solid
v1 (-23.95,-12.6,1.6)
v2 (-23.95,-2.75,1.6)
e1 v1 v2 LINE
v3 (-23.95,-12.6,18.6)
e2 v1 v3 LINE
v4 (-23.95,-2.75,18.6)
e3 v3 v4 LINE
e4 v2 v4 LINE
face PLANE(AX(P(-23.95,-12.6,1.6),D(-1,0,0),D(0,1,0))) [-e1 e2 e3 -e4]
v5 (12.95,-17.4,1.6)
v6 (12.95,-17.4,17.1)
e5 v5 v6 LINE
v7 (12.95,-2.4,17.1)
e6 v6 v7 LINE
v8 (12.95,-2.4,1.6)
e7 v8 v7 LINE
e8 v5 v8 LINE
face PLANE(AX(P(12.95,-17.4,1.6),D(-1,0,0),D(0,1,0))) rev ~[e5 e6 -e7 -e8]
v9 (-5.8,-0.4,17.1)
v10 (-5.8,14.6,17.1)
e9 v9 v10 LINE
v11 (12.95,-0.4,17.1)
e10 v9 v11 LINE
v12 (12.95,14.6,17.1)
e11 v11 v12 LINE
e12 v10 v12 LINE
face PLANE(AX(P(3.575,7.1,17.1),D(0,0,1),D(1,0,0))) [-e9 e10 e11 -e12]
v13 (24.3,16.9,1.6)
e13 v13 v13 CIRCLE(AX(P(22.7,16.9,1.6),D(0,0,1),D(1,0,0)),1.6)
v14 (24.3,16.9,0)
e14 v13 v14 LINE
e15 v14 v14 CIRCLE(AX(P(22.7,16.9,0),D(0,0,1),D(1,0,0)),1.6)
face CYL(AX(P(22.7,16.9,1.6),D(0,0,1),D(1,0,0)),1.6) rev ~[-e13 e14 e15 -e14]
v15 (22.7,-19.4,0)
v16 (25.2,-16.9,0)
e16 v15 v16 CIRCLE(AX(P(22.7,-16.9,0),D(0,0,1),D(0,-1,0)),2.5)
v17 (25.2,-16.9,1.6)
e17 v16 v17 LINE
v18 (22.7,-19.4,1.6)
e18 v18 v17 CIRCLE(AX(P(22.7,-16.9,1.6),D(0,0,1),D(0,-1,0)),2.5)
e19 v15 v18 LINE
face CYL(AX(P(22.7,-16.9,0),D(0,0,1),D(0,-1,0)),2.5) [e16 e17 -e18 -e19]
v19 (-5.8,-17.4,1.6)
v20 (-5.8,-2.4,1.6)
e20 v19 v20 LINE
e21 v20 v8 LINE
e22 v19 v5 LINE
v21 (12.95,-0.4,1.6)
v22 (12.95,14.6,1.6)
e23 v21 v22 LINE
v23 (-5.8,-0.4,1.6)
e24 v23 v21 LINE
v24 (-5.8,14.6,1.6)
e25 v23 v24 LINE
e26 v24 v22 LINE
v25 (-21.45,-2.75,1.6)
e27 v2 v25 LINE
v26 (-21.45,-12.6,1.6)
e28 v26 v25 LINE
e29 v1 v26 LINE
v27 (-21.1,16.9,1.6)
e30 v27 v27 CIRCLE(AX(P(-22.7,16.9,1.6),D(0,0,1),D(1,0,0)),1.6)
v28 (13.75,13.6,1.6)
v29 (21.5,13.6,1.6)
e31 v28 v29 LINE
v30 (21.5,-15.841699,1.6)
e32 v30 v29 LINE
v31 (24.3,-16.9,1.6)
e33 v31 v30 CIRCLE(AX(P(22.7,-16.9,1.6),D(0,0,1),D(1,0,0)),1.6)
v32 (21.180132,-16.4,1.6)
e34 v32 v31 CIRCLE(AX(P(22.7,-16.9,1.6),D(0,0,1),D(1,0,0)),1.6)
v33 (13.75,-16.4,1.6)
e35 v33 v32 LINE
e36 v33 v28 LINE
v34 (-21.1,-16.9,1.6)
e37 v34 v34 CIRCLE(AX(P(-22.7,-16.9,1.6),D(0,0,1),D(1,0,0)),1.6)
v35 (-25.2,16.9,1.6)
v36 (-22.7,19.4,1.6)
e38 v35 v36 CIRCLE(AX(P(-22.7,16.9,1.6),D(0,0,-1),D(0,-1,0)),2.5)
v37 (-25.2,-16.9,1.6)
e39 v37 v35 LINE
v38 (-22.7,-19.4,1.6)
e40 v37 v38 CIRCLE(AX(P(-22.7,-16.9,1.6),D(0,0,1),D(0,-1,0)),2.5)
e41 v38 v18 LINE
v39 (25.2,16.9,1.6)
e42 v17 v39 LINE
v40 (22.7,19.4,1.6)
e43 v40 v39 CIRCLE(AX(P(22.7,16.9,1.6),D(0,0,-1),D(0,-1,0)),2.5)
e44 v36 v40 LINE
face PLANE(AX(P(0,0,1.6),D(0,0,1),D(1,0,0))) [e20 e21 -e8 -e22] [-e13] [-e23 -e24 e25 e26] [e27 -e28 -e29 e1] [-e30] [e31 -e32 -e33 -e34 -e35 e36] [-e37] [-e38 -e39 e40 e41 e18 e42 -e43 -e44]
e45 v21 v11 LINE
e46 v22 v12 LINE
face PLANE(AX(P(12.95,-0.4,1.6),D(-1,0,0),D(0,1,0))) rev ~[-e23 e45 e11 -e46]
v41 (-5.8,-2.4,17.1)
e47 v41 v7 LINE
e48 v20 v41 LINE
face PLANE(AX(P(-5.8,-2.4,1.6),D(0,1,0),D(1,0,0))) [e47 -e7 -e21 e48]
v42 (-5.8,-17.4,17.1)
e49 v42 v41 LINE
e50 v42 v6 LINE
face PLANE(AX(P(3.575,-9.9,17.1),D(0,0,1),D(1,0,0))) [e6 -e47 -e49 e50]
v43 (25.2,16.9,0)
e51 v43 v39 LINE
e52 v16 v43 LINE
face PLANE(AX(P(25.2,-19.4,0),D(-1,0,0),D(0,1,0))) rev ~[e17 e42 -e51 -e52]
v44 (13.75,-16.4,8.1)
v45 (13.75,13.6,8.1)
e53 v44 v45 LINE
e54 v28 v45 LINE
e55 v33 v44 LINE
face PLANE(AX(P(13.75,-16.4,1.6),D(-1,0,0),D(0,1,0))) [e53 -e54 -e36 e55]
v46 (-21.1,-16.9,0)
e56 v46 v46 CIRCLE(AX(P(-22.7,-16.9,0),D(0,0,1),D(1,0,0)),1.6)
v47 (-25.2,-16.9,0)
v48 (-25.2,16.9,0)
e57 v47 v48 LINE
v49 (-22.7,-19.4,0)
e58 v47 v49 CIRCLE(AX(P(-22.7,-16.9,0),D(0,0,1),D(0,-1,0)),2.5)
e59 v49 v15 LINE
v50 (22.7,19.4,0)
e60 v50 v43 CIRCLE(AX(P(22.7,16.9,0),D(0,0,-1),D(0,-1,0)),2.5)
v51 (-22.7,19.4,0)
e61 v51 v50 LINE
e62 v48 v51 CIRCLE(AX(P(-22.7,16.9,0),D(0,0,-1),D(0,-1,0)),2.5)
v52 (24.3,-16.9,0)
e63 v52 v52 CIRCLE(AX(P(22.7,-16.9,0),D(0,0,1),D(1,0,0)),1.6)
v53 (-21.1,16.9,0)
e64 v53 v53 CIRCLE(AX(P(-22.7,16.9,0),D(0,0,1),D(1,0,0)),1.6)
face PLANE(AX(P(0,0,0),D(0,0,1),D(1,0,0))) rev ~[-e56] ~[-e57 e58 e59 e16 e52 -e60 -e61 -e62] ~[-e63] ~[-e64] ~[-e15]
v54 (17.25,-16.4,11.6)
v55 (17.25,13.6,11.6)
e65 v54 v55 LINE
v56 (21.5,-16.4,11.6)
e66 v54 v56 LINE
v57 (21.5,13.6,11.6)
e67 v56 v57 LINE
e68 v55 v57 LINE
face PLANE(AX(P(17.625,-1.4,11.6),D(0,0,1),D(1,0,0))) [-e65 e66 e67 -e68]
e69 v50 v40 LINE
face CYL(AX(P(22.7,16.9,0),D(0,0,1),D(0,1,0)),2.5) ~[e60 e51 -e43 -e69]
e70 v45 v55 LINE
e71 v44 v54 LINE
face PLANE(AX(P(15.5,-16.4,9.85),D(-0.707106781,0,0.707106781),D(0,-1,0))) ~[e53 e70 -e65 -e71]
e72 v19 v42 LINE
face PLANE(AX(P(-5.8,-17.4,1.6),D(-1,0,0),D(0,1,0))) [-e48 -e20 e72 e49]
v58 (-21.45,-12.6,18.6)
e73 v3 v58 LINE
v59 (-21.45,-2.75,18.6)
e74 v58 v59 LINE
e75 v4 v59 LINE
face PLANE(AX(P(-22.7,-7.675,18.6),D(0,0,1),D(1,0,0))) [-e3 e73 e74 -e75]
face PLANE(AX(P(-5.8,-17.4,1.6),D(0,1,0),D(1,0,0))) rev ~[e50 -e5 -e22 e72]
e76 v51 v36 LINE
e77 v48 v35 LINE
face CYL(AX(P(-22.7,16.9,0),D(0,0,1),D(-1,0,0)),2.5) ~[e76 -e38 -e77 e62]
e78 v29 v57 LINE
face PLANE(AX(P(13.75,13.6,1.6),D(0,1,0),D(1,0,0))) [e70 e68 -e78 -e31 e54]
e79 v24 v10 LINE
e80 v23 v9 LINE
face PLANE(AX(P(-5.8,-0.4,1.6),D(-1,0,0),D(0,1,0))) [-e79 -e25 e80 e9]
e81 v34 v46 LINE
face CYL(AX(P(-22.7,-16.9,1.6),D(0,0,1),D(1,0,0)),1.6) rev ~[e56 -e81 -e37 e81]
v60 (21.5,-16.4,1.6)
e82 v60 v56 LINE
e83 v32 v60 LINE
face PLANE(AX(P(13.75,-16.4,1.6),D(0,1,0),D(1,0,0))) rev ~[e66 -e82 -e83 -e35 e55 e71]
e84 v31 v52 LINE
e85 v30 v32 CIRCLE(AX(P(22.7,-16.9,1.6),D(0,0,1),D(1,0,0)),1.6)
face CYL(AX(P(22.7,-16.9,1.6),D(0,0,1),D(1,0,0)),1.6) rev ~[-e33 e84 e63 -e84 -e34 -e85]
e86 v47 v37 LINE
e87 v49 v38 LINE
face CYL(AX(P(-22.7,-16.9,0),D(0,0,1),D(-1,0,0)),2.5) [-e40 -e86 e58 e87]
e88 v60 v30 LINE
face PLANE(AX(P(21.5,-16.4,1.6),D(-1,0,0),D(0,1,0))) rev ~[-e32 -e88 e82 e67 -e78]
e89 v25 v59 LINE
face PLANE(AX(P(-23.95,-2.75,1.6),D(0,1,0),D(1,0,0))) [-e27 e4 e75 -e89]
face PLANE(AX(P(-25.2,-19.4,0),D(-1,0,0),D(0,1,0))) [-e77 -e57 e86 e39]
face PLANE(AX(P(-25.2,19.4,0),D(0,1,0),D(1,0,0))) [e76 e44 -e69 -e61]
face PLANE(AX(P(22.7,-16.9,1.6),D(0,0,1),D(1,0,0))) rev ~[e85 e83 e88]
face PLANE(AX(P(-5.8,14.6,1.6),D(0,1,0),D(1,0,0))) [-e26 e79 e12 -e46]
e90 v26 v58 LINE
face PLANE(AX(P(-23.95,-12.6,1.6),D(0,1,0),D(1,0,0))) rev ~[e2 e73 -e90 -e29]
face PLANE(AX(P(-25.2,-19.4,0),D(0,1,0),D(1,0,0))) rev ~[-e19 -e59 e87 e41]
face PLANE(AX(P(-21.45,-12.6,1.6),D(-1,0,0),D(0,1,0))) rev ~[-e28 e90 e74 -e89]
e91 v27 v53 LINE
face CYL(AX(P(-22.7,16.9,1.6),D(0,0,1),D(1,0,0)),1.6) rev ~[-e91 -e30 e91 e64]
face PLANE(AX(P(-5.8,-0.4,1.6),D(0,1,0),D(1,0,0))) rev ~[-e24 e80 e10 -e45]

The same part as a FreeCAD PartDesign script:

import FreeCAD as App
import Part
import Sketcher


def edges_at(feature, points):
    """Names of the edges that pass closest to the given points."""
    edges = feature.Shape.Edges
    near = lambda p: min(range(len(edges)), key=lambda i: edges[i].distToShape(Part.Vertex(*p))[0])
    return sorted({f"Edge{near(p) + 1}" for p in points})


def add_polygon(sketch, points):
    """Adds a closed chain of lines whose ends are joined by coincident constraints."""
    first, n = sketch.GeometryCount, len(points)
    for a, b in zip(points, points[1:] + points[:1]):
        sketch.addGeometry(Part.LineSegment(App.Vector(*a, 0), App.Vector(*b, 0)), False)
    for i in range(n):
        sketch.addConstraint(Sketcher.Constraint("Coincident", first + i, 2, first + (i + 1) % n, 1))

doc = App.newDocument("Part")
body = doc.addObject("PartDesign::Body", "Body")

# Sketch on XY plane
sketch1 = body.newObject("Sketcher::SketchObject", "Sketch")
sketch1.AttachmentSupport = (doc.getObject("XY_Plane"), [""])
sketch1.MapMode = "FlatFace"
add_polygon(sketch1, [(-25, 19), (-25, -19), (25, -19), (25, 19)])  # lines 0-3
sketch1.addConstraint([
    Sketcher.Constraint("Vertical", 0),
    Sketcher.Constraint("Horizontal", 1),
    Sketcher.Constraint("Vertical", 2),
    Sketcher.Constraint("Horizontal", 3),
    Sketcher.Constraint("Symmetric", 0, 2, 2, 2, -1, 1),
    Sketcher.Constraint("DistanceX", 1, 1, 1, 2, 50.4),
    Sketcher.Constraint("DistanceY", 0, 2, 0, 1, 38.8),
])
pad1 = body.newObject("PartDesign::Pad", "Pad")
pad1.Profile = sketch1
pad1.Length = 1.6

# Sketch on XY plane
sketch2 = body.newObject("Sketcher::SketchObject", "Sketch001")
sketch2.AttachmentSupport = (doc.getObject("XY_Plane"), [""])
sketch2.MapMode = "FlatFace"
sketch2.AttachmentOffset = App.Placement(App.Vector(0, 0, 1.6), App.Rotation())
add_polygon(sketch2, [(-6, -2), (-6, -17), (13, -17), (13, -2)])  # lines 0-3
add_polygon(sketch2, [(-6, 15), (-6, 0), (13, 0), (13, 15)])  # lines 4-7
sketch2.addConstraint([
    Sketcher.Constraint("Vertical", 0),
    Sketcher.Constraint("Horizontal", 1),
    Sketcher.Constraint("Vertical", 2),
    Sketcher.Constraint("Horizontal", 3),
    Sketcher.Constraint("Vertical", 4),
    Sketcher.Constraint("Horizontal", 5),
    Sketcher.Constraint("Vertical", 6),
    Sketcher.Constraint("Horizontal", 7),
    Sketcher.Constraint("Vertical", 3, 2, 4, 2),
    Sketcher.Constraint("Vertical", 2, 2, 5, 2),
    Sketcher.Constraint("Equal", 2, 4),
    Sketcher.Constraint("DistanceY", 0, 2, 0, 1, 15.0),
    Sketcher.Constraint("DistanceY", 3, 2, 4, 2, 2.0),
    Sketcher.Constraint("DistanceX", 1, 1, 1, 2, 18.75),
    Sketcher.Constraint("DistanceX", 0, 2, -1, 1, 5.8),
    Sketcher.Constraint("DistanceY", 0, 2, -1, 1, 17.4),
])
pad2 = body.newObject("PartDesign::Pad", "Pad001")
pad2.Profile = sketch2
pad2.Length = 15.5

# Sketch on XY plane
sketch3 = body.newObject("Sketcher::SketchObject", "Sketch002")
sketch3.AttachmentSupport = (doc.getObject("XY_Plane"), [""])
sketch3.MapMode = "FlatFace"
sketch3.AttachmentOffset = App.Placement(App.Vector(0, 0, 1.6), App.Rotation())
add_polygon(sketch3, [(14, 14), (14, -16), (22, -16), (22, 14)])  # lines 0-3
sketch3.addConstraint([
    Sketcher.Constraint("Vertical", 0),
    Sketcher.Constraint("Horizontal", 1),
    Sketcher.Constraint("Vertical", 2),
    Sketcher.Constraint("Horizontal", 3),
    Sketcher.Constraint("DistanceY", 0, 2, 0, 1, 30.0),
    Sketcher.Constraint("DistanceX", 1, 1, 1, 2, 7.75),
    Sketcher.Constraint("DistanceY", 0, 2, -1, 1, 16.4),
    Sketcher.Constraint("DistanceX", -1, 1, 1, 2, 21.5),
])
pad3 = body.newObject("PartDesign::Pad", "Pad002")
pad3.Profile = sketch3
pad3.Length = 10
doc.recompute()

chamfer = body.newObject("PartDesign::Chamfer", "Chamfer")
chamfer.Base = (pad3, edges_at(pad3, [(13.75, -1.4, 11.6)]))
chamfer.ChamferType = "Two distances"
chamfer.Size = 3.5
chamfer.Size2 = 3.5

# Sketch on XY plane
sketch4 = body.newObject("Sketcher::SketchObject", "Sketch003")
sketch4.AttachmentSupport = (doc.getObject("XY_Plane"), [""])
sketch4.MapMode = "FlatFace"
sketch4.AttachmentOffset = App.Placement(App.Vector(0, 0, 1.6), App.Rotation())
add_polygon(sketch4, [(-23.9, -2.8), (-23.9, -12.6), (-21.4, -12.6), (-21.4, -2.8)])  # lines 0-3
sketch4.addConstraint([
    Sketcher.Constraint("Vertical", 0),
    Sketcher.Constraint("Horizontal", 1),
    Sketcher.Constraint("Vertical", 2),
    Sketcher.Constraint("Horizontal", 3),
    Sketcher.Constraint("DistanceX", 1, 1, 1, 2, 2.5),
    Sketcher.Constraint("DistanceY", 0, 2, 0, 1, 9.85),
    Sketcher.Constraint("DistanceY", 0, 2, -1, 1, 12.6),
    Sketcher.Constraint("DistanceX", 0, 2, -1, 1, 23.95),
])
pad4 = body.newObject("PartDesign::Pad", "Pad003")
pad4.Profile = sketch4
pad4.Length = 17
doc.recompute()

fillet = body.newObject("PartDesign::Fillet", "Fillet")
fillet.Base = (pad4, edges_at(pad4, [
    (-25.2, 19.4, 0.8),
    (25.2, 19.4, 0.8),
    (25.2, -19.4, 0.8),
    (-25.2, -19.4, 0.8),
]))
fillet.Radius = 2.5

# Sketch on XY plane
sketch5 = body.newObject("Sketcher::SketchObject", "Sketch004")
sketch5.AttachmentSupport = (doc.getObject("XY_Plane"), [""])
sketch5.MapMode = "FlatFace"
sketch5.AttachmentOffset = App.Placement(App.Vector(0, 0, 1.6), App.Rotation())
sketch5.addGeometry([
    Part.Circle(App.Vector(-22.7, 16.9, 0), App.Vector(0, 0, 1), 1.6),
    Part.Circle(App.Vector(22.7, 16.9, 0), App.Vector(0, 0, 1), 1.6),
    Part.Circle(App.Vector(22.7, -16.9, 0), App.Vector(0, 0, 1), 1.6),
    Part.Circle(App.Vector(-22.7, -16.9, 0), App.Vector(0, 0, 1), 1.6),
], False)
sketch5.addConstraint([
    Sketcher.Constraint("Equal", 0, 1),
    Sketcher.Constraint("Equal", 1, 2),
    Sketcher.Constraint("Equal", 2, 3),
    Sketcher.Constraint("Symmetric", 0, 3, 2, 3, -1, 1),
    Sketcher.Constraint("Symmetric", 1, 3, 3, 3, -1, 1),
    Sketcher.Constraint("Symmetric", 0, 3, 1, 3, -2),
    Sketcher.Constraint("Diameter", 0, 3.2),
    Sketcher.Constraint("DistanceX", 0, 3, -1, 1, 22.7),
    Sketcher.Constraint("DistanceY", -1, 1, 0, 3, 16.9),
])
pocket1 = body.newObject("PartDesign::Pocket", "Pocket")
pocket1.Profile = sketch5
pocket1.Type = "ThroughAll"

doc.recompute()
